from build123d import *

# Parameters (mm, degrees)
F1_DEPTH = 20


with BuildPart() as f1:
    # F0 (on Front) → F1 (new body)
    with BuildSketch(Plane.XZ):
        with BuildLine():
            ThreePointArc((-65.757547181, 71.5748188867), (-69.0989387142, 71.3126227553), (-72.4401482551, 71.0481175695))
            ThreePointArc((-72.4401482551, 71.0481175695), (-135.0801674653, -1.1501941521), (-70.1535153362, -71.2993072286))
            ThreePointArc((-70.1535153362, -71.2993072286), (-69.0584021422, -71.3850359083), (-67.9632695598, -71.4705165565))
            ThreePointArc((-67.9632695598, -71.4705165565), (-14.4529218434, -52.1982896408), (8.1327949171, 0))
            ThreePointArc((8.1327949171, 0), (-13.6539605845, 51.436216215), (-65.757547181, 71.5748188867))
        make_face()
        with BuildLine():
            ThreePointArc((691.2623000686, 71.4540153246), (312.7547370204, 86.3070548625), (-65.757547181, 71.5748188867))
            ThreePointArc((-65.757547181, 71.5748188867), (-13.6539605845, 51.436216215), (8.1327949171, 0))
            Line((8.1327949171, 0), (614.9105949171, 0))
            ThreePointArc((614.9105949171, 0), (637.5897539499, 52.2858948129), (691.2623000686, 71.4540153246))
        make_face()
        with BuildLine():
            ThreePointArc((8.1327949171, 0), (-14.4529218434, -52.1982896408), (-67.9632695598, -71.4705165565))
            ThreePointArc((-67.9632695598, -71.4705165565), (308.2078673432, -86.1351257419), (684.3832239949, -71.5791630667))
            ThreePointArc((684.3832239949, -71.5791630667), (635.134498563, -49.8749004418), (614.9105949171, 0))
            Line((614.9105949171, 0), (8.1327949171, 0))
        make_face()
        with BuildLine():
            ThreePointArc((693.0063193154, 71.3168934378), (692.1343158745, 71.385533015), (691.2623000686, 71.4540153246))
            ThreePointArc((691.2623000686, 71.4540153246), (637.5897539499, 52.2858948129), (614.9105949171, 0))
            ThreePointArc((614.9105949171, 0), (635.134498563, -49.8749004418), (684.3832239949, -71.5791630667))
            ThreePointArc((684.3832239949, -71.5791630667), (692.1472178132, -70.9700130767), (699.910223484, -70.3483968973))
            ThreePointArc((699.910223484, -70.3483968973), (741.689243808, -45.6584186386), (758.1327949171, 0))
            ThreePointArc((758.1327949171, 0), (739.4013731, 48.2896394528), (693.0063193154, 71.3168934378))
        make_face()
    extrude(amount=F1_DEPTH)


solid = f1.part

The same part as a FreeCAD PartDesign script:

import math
import FreeCAD as App
import Part
import Sketcher

doc = App.newDocument("Part")
body = doc.addObject("PartDesign::Body", "Body")

# Sketch on XZ plane
sketch1 = body.newObject("Sketcher::SketchObject", "Sketch")
sketch1.AttachmentSupport = (doc.getObject("XZ_Plane"), [""])
sketch1.MapMode = "FlatFace"
sketch1.addGeometry(Part.ArcOfCircle(Part.Circle(App.Vector(311.980781, -4763.692834, 0), App.Vector(0, 0, 1), 4849.99995), math.radians(94.466959), math.radians(94.54615)), False)
sketch1.addGeometry(Part.ArcOfCircle(Part.Circle(App.Vector(-63.478305, 0, 0), App.Vector(0, 0, 1), 71.6111), math.radians(97.189188), math.radians(264.651424)), False)
sketch1.addGeometry(Part.ArcOfCircle(Part.Circle(App.Vector(308.908217, 4763.86431, 0), App.Vector(0, 0, 1), 4849.999485), math.radians(-94.482642), math.radians(-94.456688)), False)
sketch1.addGeometry(Part.ArcOfCircle(Part.Circle(App.Vector(308.908257, 4763.864824, 0), App.Vector(0, 0, 1), 4850), math.radians(-94.456688), math.radians(-85.55986)), False)
sketch1.addGeometry(Part.ArcOfCircle(Part.Circle(App.Vector(308.908255, 4763.864848, 0), App.Vector(0, 0, 1), 4850.000024), math.radians(-85.55986), math.radians(-85.375855)), False)
sketch1.addGeometry(Part.ArcOfCircle(Part.Circle(App.Vector(686.521695, 0, 0), App.Vector(0, 0, 1), 71.6111), math.radians(-79.224478), math.radians(84.804559)), False)
sketch1.addGeometry(Part.ArcOfCircle(Part.Circle(App.Vector(311.980979, -4763.690416, 0), App.Vector(0, 0, 1), 4849.997525), math.radians(85.494088), math.radians(85.514754)), False)
sketch1.addGeometry(Part.ArcOfCircle(Part.Circle(App.Vector(311.980785, -4763.692883, 0), App.Vector(0, 0, 1), 4850), math.radians(85.514754), math.radians(94.466959)), False)
sketch1.addConstraint(Sketcher.Constraint("Coincident", 0, 2, 1, 1))
sketch1.addConstraint(Sketcher.Constraint("Coincident", 1, 2, 2, 1))
sketch1.addConstraint(Sketcher.Constraint("Coincident", 2, 2, 3, 1))
sketch1.addConstraint(Sketcher.Constraint("Coincident", 3, 2, 4, 1))
sketch1.addConstraint(Sketcher.Constraint("Coincident", 4, 2, 5, 1))
sketch1.addConstraint(Sketcher.Constraint("Coincident", 5, 2, 6, 1))
sketch1.addConstraint(Sketcher.Constraint("Coincident", 6, 2, 7, 1))
sketch1.addConstraint(Sketcher.Constraint("Coincident", 7, 2, 0, 1))
sketch1.addConstraint(Sketcher.Constraint("Equal", 1, 5))
sketch1.addConstraint(Sketcher.Constraint("Equal", 3, 7))
sketch1.addConstraint(Sketcher.Constraint("PointOnObject", 1, 3, -1))
sketch1.addConstraint(Sketcher.Constraint("PointOnObject", 5, 3, -1))
sketch1.addConstraint(Sketcher.Constraint("Vertical", 3, 3, 4, 3))
sketch1.addConstraint(Sketcher.Constraint("Radius", 3, 4850.0))
sketch1.addConstraint(Sketcher.Constraint("DistanceX", 1, 3, 5, 3, 750.0))
sketch1.addConstraint(Sketcher.Constraint("Radius", 1, 71.6111))
sketch1.addConstraint(Sketcher.Constraint("Radius", 0, 4849.99995))
sketch1.addConstraint(Sketcher.Constraint("Radius", 2, 4849.999485))
sketch1.addConstraint(Sketcher.Constraint("Radius", 4, 4850.000024))
sketch1.addConstraint(Sketcher.Constraint("Radius", 6, 4849.997525))
sketch1.addConstraint(Sketcher.Constraint("DistanceX", 3, 2, 4, 2, 15.526999))
sketch1.addConstraint(Sketcher.Constraint("DistanceX", -1, 1, 6, 2, 691.2623))
sketch1.addConstraint(Sketcher.Constraint("DistanceY", 6, 3, 2, 2, 4692.2199))
sketch1.addConstraint(Sketcher.Constraint("DistanceX", 0, 2, 7, 2, 6.682601))
sketch1.addConstraint(Sketcher.Constraint("DistanceX", -1, 1, 0, 3, 311.980781))
sketch1.addConstraint(Sketcher.Constraint("DistanceY", -1, 1, 2, 3, 4763.86431))
sketch1.addConstraint(Sketcher.Constraint("DistanceX", -1, 1, 6, 3, 311.980979))
sketch1.addConstraint(Sketcher.Constraint("DistanceX", 0, 2, -1, 1, 72.440148))
sketch1.addConstraint(Sketcher.Constraint("DistanceX", -1, 1, 5, 2, 693.006319))
sketch1.addConstraint(Sketcher.Constraint("DistanceX", 1, 3, 2, 3, 372.386522))
sketch1.addConstraint(Sketcher.Constraint("DistanceX", 1, 3, 3, 3, 372.386562))
sketch1.addConstraint(Sketcher.Constraint("DistanceY", 0, 3, 4, 3, 9527.557681))
pad1 = body.newObject("PartDesign::Pad", "Pad")
pad1.Profile = sketch1
pad1.Length = 20

doc.recompute()
